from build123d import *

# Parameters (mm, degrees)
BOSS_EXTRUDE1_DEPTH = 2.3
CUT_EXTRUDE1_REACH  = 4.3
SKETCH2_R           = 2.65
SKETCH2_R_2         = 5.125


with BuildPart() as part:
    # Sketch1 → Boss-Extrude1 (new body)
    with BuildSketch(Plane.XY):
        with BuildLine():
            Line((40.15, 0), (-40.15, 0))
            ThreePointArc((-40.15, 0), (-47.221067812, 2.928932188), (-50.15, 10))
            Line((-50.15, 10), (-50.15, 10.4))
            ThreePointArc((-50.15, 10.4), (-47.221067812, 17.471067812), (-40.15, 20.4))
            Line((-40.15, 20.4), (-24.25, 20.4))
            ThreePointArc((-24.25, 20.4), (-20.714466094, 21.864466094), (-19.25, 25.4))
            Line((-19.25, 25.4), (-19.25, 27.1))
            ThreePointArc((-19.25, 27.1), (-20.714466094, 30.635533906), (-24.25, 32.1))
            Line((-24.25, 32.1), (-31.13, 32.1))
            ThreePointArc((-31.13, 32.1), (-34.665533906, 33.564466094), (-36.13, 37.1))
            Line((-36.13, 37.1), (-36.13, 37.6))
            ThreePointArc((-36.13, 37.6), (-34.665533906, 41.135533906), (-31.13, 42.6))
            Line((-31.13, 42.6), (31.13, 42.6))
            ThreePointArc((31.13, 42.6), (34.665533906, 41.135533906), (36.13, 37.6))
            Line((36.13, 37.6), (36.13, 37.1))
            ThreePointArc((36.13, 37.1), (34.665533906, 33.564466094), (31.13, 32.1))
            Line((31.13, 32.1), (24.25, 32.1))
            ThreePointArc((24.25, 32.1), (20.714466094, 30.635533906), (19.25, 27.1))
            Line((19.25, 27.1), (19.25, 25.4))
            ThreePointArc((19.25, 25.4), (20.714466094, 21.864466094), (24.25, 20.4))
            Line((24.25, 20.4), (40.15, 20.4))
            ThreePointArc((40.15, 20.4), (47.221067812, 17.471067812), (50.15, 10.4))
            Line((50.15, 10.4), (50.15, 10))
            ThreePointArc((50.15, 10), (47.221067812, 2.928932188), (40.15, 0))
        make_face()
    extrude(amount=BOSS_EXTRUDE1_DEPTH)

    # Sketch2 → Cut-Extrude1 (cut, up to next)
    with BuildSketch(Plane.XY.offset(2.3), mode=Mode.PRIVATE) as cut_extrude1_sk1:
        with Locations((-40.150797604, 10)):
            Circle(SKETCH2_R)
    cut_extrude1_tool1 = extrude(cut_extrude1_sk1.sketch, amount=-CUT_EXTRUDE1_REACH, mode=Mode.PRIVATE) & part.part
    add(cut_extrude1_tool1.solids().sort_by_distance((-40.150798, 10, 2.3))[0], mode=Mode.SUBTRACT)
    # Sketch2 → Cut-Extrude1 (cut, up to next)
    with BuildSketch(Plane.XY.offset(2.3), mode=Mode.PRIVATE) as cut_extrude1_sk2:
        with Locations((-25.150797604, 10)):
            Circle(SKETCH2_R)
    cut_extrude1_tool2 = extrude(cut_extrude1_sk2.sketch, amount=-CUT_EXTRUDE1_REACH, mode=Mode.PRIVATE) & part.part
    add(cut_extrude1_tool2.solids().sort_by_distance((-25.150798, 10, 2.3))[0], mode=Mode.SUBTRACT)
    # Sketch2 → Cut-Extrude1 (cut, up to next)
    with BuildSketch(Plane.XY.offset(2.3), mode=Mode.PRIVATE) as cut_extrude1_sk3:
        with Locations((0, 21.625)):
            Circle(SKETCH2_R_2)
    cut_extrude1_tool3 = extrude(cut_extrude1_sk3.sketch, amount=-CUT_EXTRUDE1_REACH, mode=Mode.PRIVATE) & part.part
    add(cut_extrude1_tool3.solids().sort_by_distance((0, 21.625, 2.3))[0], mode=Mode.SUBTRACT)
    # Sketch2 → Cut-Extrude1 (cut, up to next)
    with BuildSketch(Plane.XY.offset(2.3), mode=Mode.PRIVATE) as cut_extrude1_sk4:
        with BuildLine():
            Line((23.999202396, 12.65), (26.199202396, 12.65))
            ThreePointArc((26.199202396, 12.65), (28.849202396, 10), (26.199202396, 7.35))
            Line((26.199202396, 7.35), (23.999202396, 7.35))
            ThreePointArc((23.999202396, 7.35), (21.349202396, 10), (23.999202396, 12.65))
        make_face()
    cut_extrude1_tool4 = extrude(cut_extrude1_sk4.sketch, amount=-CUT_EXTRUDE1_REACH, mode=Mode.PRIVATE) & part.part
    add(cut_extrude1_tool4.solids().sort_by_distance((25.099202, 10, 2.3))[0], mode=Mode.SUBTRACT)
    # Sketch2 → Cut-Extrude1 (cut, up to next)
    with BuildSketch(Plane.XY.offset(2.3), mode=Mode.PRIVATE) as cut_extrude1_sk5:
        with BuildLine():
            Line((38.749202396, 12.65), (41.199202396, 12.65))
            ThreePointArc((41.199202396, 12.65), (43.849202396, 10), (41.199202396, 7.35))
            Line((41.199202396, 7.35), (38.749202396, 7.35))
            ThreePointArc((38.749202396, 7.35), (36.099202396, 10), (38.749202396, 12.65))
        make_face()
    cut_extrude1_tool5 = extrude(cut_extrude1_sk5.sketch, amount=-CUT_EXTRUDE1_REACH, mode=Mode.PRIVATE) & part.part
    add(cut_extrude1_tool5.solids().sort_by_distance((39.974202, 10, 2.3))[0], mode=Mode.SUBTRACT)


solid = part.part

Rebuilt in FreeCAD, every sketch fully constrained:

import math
import FreeCAD as App
import Part
import Sketcher

V = App.Vector
Q = App.Units.Quantity

doc = App.newDocument("Part")
body = doc.addObject("PartDesign::Body", "Body")

# Sketch on XY plane
sketch1 = body.newObject("Sketcher::SketchObject", "Sketch")
sketch1.AttachmentSupport = (doc.getObject("XY_Plane"), [""])
sketch1.MapMode = "FlatFace"
sketch1.addGeometry([
    Part.LineSegment(V(-40.15, 0, 0), V(40.15, 0, 0)),  # 0
    Part.ArcOfCircle(Part.Circle(V(40.15, 10, 0), V(0, 0, 1), 10), math.radians(-90), math.radians(0)),  # 1
    Part.LineSegment(V(50.15, 10, 0), V(50.15, 10.4, 0)),  # 2
    Part.ArcOfCircle(Part.Circle(V(40.15, 10.4, 0), V(0, 0, 1), 10), math.radians(0), math.radians(90)),  # 3
    Part.LineSegment(V(40.15, 20.4, 0), V(24.25, 20.4, 0)),  # 4
    Part.ArcOfCircle(Part.Circle(V(24.25, 25.4, 0), V(0, 0, 1), 5), math.radians(180), math.radians(270)),  # 5
    Part.LineSegment(V(19.25, 25.4, 0), V(19.25, 27.1, 0)),  # 6
    Part.ArcOfCircle(Part.Circle(V(24.25, 27.1, 0), V(0, 0, 1), 5), math.radians(90), math.radians(180)),  # 7
    Part.LineSegment(V(24.25, 32.1, 0), V(31.13, 32.1, 0)),  # 8
    Part.ArcOfCircle(Part.Circle(V(31.13, 37.1, 0), V(0, 0, 1), 5), math.radians(-90), math.radians(0)),  # 9
    Part.LineSegment(V(36.13, 37.1, 0), V(36.13, 37.6, 0)),  # 10
    Part.ArcOfCircle(Part.Circle(V(31.13, 37.6, 0), V(0, 0, 1), 5), math.radians(0), math.radians(90)),  # 11
    Part.LineSegment(V(31.13, 42.6, 0), V(-31.13, 42.6, 0)),  # 12
    Part.ArcOfCircle(Part.Circle(V(-31.13, 37.6, 0), V(0, 0, 1), 5), math.radians(90), math.radians(180)),  # 13
    Part.LineSegment(V(-36.13, 37.6, 0), V(-36.13, 37.1, 0)),  # 14
    Part.ArcOfCircle(Part.Circle(V(-31.13, 37.1, 0), V(0, 0, 1), 5), math.radians(180), math.radians(270)),  # 15
    Part.LineSegment(V(-31.13, 32.1, 0), V(-24.25, 32.1, 0)),  # 16
    Part.ArcOfCircle(Part.Circle(V(-24.25, 27.1, 0), V(0, 0, 1), 5), math.radians(0), math.radians(90)),  # 17
    Part.LineSegment(V(-19.25, 27.1, 0), V(-19.25, 25.4, 0)),  # 18
    Part.ArcOfCircle(Part.Circle(V(-24.25, 25.4, 0), V(0, 0, 1), 5), math.radians(-90), math.radians(0)),  # 19
    Part.LineSegment(V(-24.25, 20.4, 0), V(-40.15, 20.4, 0)),  # 20
    Part.ArcOfCircle(Part.Circle(V(-40.15, 10.4, 0), V(0, 0, 1), 10), math.radians(90), math.radians(180)),  # 21
    Part.LineSegment(V(-50.15, 10.4, 0), V(-50.15, 10, 0)),  # 22
    Part.ArcOfCircle(Part.Circle(V(-40.15, 10, 0), V(0, 0, 1), 10), math.radians(180), math.radians(270)),  # 23
], False)
sketch1.addConstraint([
    Sketcher.Constraint("Tangent", 0, 2, 1, 1),
    Sketcher.Constraint("Tangent", 1, 2, 2, 1),
    Sketcher.Constraint("Tangent", 2, 2, 3, 1),
    Sketcher.Constraint("Tangent", 3, 2, 4, 1),
    Sketcher.Constraint("Tangent", 4, 2, 5, 2),
    Sketcher.Constraint("Tangent", 5, 1, 6, 1),
    Sketcher.Constraint("Tangent", 6, 2, 7, 2),
    Sketcher.Constraint("Tangent", 7, 1, 8, 1),
    Sketcher.Constraint("Tangent", 8, 2, 9, 1),
    Sketcher.Constraint("Tangent", 9, 2, 10, 1),
    Sketcher.Constraint("Tangent", 10, 2, 11, 1),
    Sketcher.Constraint("Tangent", 11, 2, 12, 1),
    Sketcher.Constraint("Tangent", 12, 2, 13, 1),
    Sketcher.Constraint("Tangent", 13, 2, 14, 1),
    Sketcher.Constraint("Tangent", 14, 2, 15, 1),
    Sketcher.Constraint("Tangent", 15, 2, 16, 1),
    Sketcher.Constraint("Tangent", 16, 2, 17, 2),
    Sketcher.Constraint("Tangent", 17, 1, 18, 1),
    Sketcher.Constraint("Tangent", 18, 2, 19, 2),
    Sketcher.Constraint("Tangent", 19, 1, 20, 1),
    Sketcher.Constraint("Tangent", 20, 2, 21, 1),
    Sketcher.Constraint("Tangent", 21, 2, 22, 1),
    Sketcher.Constraint("Tangent", 22, 2, 23, 1),
    Sketcher.Constraint("Tangent", 23, 2, 0, 1),
    Sketcher.Constraint("Horizontal", 0),
    Sketcher.Constraint("Vertical", 2),
    Sketcher.Constraint("Horizontal", 4),
    Sketcher.Constraint("Vertical", 6),
    Sketcher.Constraint("Horizontal", 8),
    Sketcher.Constraint("Vertical", 10),
    Sketcher.Constraint("Horizontal", 12),
    Sketcher.Constraint("Vertical", 14),
    Sketcher.Constraint("Horizontal", 16),
    Sketcher.Constraint("Vertical", 18),
    Sketcher.Constraint("Horizontal", 20),
    Sketcher.Constraint("Vertical", 22),
    Sketcher.Constraint("Equal", 1, 3),
    Sketcher.Constraint("Equal", 5, 7),
    Sketcher.Constraint("Equal", 7, 9),
    Sketcher.Constraint("Equal", 9, 11),
    Sketcher.Constraint("Equal", 11, 13),
    Sketcher.Constraint("Equal", 13, 15),
    Sketcher.Constraint("Equal", 15, 17),
    Sketcher.Constraint("Equal", 17, 19),
    Sketcher.Constraint("Equal", 3, 21),
    Sketcher.Constraint("Equal", 21, 23),
    Sketcher.Constraint("Symmetric", 0, 2, 23, 2, -1, 1),
    Sketcher.Constraint("Symmetric", 9, 3, 15, 3, -2),
    Sketcher.Constraint("Symmetric", 5, 3, 19, 3, -2),
    Sketcher.Constraint("Radius", 1, Q("10 mm")),
    Sketcher.Constraint("Radius", 5, Q("5 mm")),
    Sketcher.Constraint("DistanceX", 0, 1, 0, 2, Q("80.3 mm")),
    Sketcher.Constraint("DistanceX", 4, 2, 4, 1, Q("15.9 mm")),
    Sketcher.Constraint("DistanceY", 2, 1, 2, 2, Q("0.4 mm")),
    Sketcher.Constraint("DistanceY", 6, 1, 6, 2, Q("1.7 mm")),
    Sketcher.Constraint("DistanceY", 10, 1, 10, 2, Q("0.5 mm")),
    Sketcher.Constraint("DistanceX", 8, 1, 8, 2, Q("6.88 mm")),
])
pad1 = body.newObject("PartDesign::Pad", "Pad")
pad1.Profile = sketch1
pad1.Length = 2.3

# Sketch on XY plane
sketch2 = body.newObject("Sketcher::SketchObject", "Sketch001")
sketch2.AttachmentSupport = (doc.getObject("XY_Plane"), [""])
sketch2.MapMode = "FlatFace"
sketch2.AttachmentOffset = App.Placement(V(0, 0, 2.3), App.Rotation())
sketch2.addGeometry(Part.Circle(V(-40.2, 10, 0), V(0, 0, 1), 2.6), False)
sketch2.addConstraint([
    Sketcher.Constraint("Diameter", 0, Q("5.3 mm")),
    Sketcher.Constraint("DistanceY", -1, 1, 0, 3, Q("10 mm")),
    Sketcher.Constraint("DistanceX", 0, 3, -1, 1, Q("40.150798 mm")),
])
pocket1 = body.newObject("PartDesign::Pocket", "Pocket")
pocket1.Profile = sketch2
pocket1.Type = "UpToFirst"

# Sketch on XY plane
sketch3 = body.newObject("Sketcher::SketchObject", "Sketch002")
sketch3.AttachmentSupport = (doc.getObject("XY_Plane"), [""])
sketch3.MapMode = "FlatFace"
sketch3.AttachmentOffset = App.Placement(V(0, 0, 2.3), App.Rotation())
sketch3.addGeometry(Part.Circle(V(-25.2, 10, 0), V(0, 0, 1), 2.6), False)
sketch3.addConstraint([
    Sketcher.Constraint("Diameter", 0, Q("5.3 mm")),
    Sketcher.Constraint("DistanceY", -1, 1, 0, 3, Q("10 mm")),
    Sketcher.Constraint("DistanceX", 0, 3, -1, 1, Q("25.150798 mm")),
])
pocket2 = body.newObject("PartDesign::Pocket", "Pocket001")
pocket2.Profile = sketch3
pocket2.Type = "UpToFirst"

# Sketch on XY plane
sketch4 = body.newObject("Sketcher::SketchObject", "Sketch003")
sketch4.AttachmentSupport = (doc.getObject("XY_Plane"), [""])
sketch4.MapMode = "FlatFace"
sketch4.AttachmentOffset = App.Placement(V(0, 0, 2.3), App.Rotation())
sketch4.addGeometry(Part.Circle(V(0, 22, 0), V(0, 0, 1), 5), False)
sketch4.addConstraint([
    Sketcher.Constraint("PointOnObject", 0, 3, -2),
    Sketcher.Constraint("Diameter", 0, Q("10.25 mm")),
    Sketcher.Constraint("DistanceY", -1, 1, 0, 3, Q("21.625 mm")),
])
pocket3 = body.newObject("PartDesign::Pocket", "Pocket002")
pocket3.Profile = sketch4
pocket3.Type = "UpToFirst"

# Sketch on XY plane
sketch5 = body.newObject("Sketcher::SketchObject", "Sketch004")
sketch5.AttachmentSupport = (doc.getObject("XY_Plane"), [""])
sketch5.MapMode = "FlatFace"
sketch5.AttachmentOffset = App.Placement(V(0, 0, 2.3), App.Rotation())
sketch5.addGeometry([
    Part.LineSegment(V(26.2, 12.7, 0), V(24, 12.7, 0)),
    Part.ArcOfCircle(Part.Circle(V(24, 10, 0), V(0, 0, 1), 2.6), math.radians(90), math.radians(270)),
    Part.LineSegment(V(24, 7.3, 0), V(26.2, 7.3, 0)),
    Part.ArcOfCircle(Part.Circle(V(26.2, 10, 0), V(0, 0, 1), 2.6), math.radians(-90), math.radians(90)),
], False)
sketch5.addConstraint([
    Sketcher.Constraint("Tangent", 0, 2, 1, 1),
    Sketcher.Constraint("Tangent", 1, 2, 2, 1),
    Sketcher.Constraint("Tangent", 2, 2, 3, 1),
    Sketcher.Constraint("Tangent", 3, 2, 0, 1),
    Sketcher.Constraint("Horizontal", 0),
    Sketcher.Constraint("Horizontal", 2),
    Sketcher.Constraint("Radius", 1, Q("2.65 mm")),
    Sketcher.Constraint("DistanceX", 0, 2, 0, 1, Q("2.2 mm")),
    Sketcher.Constraint("DistanceY", -1, 1, 1, 3, Q("10 mm")),
    Sketcher.Constraint("DistanceX", -1, 1, 1, 3, Q("23.999202 mm")),
])
pocket4 = body.newObject("PartDesign::Pocket", "Pocket003")
pocket4.Profile = sketch5
pocket4.Type = "UpToFirst"

# Sketch on XY plane
sketch6 = body.newObject("Sketcher::SketchObject", "Sketch005")
sketch6.AttachmentSupport = (doc.getObject("XY_Plane"), [""])
sketch6.MapMode = "FlatFace"
sketch6.AttachmentOffset = App.Placement(V(0, 0, 2.3), App.Rotation())
sketch6.addGeometry([
    Part.LineSegment(V(41.2, 12.7, 0), V(38.7, 12.7, 0)),
    Part.ArcOfCircle(Part.Circle(V(38.7, 10, 0), V(0, 0, 1), 2.6), math.radians(90), math.radians(270)),
    Part.LineSegment(V(38.7, 7.3, 0), V(41.2, 7.3, 0)),
    Part.ArcOfCircle(Part.Circle(V(41.2, 10, 0), V(0, 0, 1), 2.6), math.radians(-90), math.radians(90)),
], False)
sketch6.addConstraint([
    Sketcher.Constraint("Tangent", 0, 2, 1, 1),
    Sketcher.Constraint("Tangent", 1, 2, 2, 1),
    Sketcher.Constraint("Tangent", 2, 2, 3, 1),
    Sketcher.Constraint("Tangent", 3, 2, 0, 1),
    Sketcher.Constraint("Horizontal", 0),
    Sketcher.Constraint("Horizontal", 2),
    Sketcher.Constraint("Radius", 1, Q("2.65 mm")),
    Sketcher.Constraint("DistanceY", -1, 1, 1, 3, Q("10 mm")),
    Sketcher.Constraint("DistanceX", 0, 2, 0, 1, Q("2.45 mm")),
    Sketcher.Constraint("DistanceX", -1, 1, 1, 3, Q("38.749202 mm")),
])
pocket5 = body.newObject("PartDesign::Pocket", "Pocket004")
pocket5.Profile = sketch6
pocket5.Type = "UpToFirst"

doc.recompute()
